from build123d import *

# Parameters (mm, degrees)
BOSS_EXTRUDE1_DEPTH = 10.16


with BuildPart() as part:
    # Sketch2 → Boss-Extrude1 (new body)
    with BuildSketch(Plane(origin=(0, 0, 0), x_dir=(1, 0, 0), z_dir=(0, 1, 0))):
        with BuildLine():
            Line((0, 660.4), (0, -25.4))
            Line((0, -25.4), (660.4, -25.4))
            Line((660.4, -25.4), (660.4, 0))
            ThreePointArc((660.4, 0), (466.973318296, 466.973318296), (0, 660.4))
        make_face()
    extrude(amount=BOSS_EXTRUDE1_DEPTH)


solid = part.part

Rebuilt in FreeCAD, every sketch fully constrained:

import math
import FreeCAD as App
import Part
import Sketcher

V = App.Vector
Q = App.Units.Quantity

doc = App.newDocument("Part")
params = doc.addObject("Spreadsheet::Sheet", "Params")
for row, (alias, value) in enumerate([
    ("sketch1_radius", "26 in"),
    ("sketch1_height", "27 in"),
    ("pad1_length", "0.4 in"),
], start=1):
    params.set(f"A{row}", alias)
    params.set(f"B{row}", "=" + value)
    params.setAlias(f"B{row}", alias)

body = doc.addObject("PartDesign::Body", "Body")

sketch1 = body.newObject("Sketcher::SketchObject", "Sketch")
sketch1.AttachmentSupport = (doc.getObject("XZ_Plane"), [""])
sketch1.MapMode = "FlatFace"
sketch1.addGeometry(Part.LineSegment(V(0, -660.4, 0), V(0, 25.4, 0)), False)
sketch1.addGeometry(Part.LineSegment(V(0, 25.4, 0), V(660.4, 25.4, 0)), False)
sketch1.addGeometry(Part.LineSegment(V(660.4, 25.4, 0), V(660.4, 0, 0)), False)
sketch1.addGeometry(Part.ArcOfCircle(Part.Circle(V(0, 0, 0), V(0, 0, 1), 660.4), math.radians(-90), math.radians(0)), False)
sketch1.addConstraint(Sketcher.Constraint("Coincident", 0, 2, 1, 1))
sketch1.addConstraint(Sketcher.Constraint("Coincident", 1, 2, 2, 1))
sketch1.addConstraint(Sketcher.Constraint("Tangent", 2, 2, 3, 2))
sketch1.addConstraint(Sketcher.Constraint("Coincident", 3, 1, 0, 1))
sketch1.addConstraint(Sketcher.Constraint("Vertical", 0))
sketch1.addConstraint(Sketcher.Constraint("Horizontal", 1))
sketch1.addConstraint(Sketcher.Constraint("Vertical", 2))
sketch1.addConstraint(Sketcher.Constraint("Coincident", 3, 3, -1, 1))
sketch1.addConstraint(Sketcher.Constraint("PointOnObject", 0, 2, -2))
sketch1.addConstraint(Sketcher.Constraint("Radius", 3, Q("26 in")))
sketch1.addConstraint(Sketcher.Constraint("DistanceY", 0, 1, 0, 2, Q("27 in")))
sketch1.setExpression("Constraints[9]", "Params.sketch1_radius")
sketch1.setExpression("Constraints[10]", "Params.sketch1_height")
pad1 = body.newObject("PartDesign::Pad", "Pad")
pad1.Profile = sketch1
pad1.setExpression("Length", "Params.pad1_length")
pad1.Reversed = True

doc.recompute()
